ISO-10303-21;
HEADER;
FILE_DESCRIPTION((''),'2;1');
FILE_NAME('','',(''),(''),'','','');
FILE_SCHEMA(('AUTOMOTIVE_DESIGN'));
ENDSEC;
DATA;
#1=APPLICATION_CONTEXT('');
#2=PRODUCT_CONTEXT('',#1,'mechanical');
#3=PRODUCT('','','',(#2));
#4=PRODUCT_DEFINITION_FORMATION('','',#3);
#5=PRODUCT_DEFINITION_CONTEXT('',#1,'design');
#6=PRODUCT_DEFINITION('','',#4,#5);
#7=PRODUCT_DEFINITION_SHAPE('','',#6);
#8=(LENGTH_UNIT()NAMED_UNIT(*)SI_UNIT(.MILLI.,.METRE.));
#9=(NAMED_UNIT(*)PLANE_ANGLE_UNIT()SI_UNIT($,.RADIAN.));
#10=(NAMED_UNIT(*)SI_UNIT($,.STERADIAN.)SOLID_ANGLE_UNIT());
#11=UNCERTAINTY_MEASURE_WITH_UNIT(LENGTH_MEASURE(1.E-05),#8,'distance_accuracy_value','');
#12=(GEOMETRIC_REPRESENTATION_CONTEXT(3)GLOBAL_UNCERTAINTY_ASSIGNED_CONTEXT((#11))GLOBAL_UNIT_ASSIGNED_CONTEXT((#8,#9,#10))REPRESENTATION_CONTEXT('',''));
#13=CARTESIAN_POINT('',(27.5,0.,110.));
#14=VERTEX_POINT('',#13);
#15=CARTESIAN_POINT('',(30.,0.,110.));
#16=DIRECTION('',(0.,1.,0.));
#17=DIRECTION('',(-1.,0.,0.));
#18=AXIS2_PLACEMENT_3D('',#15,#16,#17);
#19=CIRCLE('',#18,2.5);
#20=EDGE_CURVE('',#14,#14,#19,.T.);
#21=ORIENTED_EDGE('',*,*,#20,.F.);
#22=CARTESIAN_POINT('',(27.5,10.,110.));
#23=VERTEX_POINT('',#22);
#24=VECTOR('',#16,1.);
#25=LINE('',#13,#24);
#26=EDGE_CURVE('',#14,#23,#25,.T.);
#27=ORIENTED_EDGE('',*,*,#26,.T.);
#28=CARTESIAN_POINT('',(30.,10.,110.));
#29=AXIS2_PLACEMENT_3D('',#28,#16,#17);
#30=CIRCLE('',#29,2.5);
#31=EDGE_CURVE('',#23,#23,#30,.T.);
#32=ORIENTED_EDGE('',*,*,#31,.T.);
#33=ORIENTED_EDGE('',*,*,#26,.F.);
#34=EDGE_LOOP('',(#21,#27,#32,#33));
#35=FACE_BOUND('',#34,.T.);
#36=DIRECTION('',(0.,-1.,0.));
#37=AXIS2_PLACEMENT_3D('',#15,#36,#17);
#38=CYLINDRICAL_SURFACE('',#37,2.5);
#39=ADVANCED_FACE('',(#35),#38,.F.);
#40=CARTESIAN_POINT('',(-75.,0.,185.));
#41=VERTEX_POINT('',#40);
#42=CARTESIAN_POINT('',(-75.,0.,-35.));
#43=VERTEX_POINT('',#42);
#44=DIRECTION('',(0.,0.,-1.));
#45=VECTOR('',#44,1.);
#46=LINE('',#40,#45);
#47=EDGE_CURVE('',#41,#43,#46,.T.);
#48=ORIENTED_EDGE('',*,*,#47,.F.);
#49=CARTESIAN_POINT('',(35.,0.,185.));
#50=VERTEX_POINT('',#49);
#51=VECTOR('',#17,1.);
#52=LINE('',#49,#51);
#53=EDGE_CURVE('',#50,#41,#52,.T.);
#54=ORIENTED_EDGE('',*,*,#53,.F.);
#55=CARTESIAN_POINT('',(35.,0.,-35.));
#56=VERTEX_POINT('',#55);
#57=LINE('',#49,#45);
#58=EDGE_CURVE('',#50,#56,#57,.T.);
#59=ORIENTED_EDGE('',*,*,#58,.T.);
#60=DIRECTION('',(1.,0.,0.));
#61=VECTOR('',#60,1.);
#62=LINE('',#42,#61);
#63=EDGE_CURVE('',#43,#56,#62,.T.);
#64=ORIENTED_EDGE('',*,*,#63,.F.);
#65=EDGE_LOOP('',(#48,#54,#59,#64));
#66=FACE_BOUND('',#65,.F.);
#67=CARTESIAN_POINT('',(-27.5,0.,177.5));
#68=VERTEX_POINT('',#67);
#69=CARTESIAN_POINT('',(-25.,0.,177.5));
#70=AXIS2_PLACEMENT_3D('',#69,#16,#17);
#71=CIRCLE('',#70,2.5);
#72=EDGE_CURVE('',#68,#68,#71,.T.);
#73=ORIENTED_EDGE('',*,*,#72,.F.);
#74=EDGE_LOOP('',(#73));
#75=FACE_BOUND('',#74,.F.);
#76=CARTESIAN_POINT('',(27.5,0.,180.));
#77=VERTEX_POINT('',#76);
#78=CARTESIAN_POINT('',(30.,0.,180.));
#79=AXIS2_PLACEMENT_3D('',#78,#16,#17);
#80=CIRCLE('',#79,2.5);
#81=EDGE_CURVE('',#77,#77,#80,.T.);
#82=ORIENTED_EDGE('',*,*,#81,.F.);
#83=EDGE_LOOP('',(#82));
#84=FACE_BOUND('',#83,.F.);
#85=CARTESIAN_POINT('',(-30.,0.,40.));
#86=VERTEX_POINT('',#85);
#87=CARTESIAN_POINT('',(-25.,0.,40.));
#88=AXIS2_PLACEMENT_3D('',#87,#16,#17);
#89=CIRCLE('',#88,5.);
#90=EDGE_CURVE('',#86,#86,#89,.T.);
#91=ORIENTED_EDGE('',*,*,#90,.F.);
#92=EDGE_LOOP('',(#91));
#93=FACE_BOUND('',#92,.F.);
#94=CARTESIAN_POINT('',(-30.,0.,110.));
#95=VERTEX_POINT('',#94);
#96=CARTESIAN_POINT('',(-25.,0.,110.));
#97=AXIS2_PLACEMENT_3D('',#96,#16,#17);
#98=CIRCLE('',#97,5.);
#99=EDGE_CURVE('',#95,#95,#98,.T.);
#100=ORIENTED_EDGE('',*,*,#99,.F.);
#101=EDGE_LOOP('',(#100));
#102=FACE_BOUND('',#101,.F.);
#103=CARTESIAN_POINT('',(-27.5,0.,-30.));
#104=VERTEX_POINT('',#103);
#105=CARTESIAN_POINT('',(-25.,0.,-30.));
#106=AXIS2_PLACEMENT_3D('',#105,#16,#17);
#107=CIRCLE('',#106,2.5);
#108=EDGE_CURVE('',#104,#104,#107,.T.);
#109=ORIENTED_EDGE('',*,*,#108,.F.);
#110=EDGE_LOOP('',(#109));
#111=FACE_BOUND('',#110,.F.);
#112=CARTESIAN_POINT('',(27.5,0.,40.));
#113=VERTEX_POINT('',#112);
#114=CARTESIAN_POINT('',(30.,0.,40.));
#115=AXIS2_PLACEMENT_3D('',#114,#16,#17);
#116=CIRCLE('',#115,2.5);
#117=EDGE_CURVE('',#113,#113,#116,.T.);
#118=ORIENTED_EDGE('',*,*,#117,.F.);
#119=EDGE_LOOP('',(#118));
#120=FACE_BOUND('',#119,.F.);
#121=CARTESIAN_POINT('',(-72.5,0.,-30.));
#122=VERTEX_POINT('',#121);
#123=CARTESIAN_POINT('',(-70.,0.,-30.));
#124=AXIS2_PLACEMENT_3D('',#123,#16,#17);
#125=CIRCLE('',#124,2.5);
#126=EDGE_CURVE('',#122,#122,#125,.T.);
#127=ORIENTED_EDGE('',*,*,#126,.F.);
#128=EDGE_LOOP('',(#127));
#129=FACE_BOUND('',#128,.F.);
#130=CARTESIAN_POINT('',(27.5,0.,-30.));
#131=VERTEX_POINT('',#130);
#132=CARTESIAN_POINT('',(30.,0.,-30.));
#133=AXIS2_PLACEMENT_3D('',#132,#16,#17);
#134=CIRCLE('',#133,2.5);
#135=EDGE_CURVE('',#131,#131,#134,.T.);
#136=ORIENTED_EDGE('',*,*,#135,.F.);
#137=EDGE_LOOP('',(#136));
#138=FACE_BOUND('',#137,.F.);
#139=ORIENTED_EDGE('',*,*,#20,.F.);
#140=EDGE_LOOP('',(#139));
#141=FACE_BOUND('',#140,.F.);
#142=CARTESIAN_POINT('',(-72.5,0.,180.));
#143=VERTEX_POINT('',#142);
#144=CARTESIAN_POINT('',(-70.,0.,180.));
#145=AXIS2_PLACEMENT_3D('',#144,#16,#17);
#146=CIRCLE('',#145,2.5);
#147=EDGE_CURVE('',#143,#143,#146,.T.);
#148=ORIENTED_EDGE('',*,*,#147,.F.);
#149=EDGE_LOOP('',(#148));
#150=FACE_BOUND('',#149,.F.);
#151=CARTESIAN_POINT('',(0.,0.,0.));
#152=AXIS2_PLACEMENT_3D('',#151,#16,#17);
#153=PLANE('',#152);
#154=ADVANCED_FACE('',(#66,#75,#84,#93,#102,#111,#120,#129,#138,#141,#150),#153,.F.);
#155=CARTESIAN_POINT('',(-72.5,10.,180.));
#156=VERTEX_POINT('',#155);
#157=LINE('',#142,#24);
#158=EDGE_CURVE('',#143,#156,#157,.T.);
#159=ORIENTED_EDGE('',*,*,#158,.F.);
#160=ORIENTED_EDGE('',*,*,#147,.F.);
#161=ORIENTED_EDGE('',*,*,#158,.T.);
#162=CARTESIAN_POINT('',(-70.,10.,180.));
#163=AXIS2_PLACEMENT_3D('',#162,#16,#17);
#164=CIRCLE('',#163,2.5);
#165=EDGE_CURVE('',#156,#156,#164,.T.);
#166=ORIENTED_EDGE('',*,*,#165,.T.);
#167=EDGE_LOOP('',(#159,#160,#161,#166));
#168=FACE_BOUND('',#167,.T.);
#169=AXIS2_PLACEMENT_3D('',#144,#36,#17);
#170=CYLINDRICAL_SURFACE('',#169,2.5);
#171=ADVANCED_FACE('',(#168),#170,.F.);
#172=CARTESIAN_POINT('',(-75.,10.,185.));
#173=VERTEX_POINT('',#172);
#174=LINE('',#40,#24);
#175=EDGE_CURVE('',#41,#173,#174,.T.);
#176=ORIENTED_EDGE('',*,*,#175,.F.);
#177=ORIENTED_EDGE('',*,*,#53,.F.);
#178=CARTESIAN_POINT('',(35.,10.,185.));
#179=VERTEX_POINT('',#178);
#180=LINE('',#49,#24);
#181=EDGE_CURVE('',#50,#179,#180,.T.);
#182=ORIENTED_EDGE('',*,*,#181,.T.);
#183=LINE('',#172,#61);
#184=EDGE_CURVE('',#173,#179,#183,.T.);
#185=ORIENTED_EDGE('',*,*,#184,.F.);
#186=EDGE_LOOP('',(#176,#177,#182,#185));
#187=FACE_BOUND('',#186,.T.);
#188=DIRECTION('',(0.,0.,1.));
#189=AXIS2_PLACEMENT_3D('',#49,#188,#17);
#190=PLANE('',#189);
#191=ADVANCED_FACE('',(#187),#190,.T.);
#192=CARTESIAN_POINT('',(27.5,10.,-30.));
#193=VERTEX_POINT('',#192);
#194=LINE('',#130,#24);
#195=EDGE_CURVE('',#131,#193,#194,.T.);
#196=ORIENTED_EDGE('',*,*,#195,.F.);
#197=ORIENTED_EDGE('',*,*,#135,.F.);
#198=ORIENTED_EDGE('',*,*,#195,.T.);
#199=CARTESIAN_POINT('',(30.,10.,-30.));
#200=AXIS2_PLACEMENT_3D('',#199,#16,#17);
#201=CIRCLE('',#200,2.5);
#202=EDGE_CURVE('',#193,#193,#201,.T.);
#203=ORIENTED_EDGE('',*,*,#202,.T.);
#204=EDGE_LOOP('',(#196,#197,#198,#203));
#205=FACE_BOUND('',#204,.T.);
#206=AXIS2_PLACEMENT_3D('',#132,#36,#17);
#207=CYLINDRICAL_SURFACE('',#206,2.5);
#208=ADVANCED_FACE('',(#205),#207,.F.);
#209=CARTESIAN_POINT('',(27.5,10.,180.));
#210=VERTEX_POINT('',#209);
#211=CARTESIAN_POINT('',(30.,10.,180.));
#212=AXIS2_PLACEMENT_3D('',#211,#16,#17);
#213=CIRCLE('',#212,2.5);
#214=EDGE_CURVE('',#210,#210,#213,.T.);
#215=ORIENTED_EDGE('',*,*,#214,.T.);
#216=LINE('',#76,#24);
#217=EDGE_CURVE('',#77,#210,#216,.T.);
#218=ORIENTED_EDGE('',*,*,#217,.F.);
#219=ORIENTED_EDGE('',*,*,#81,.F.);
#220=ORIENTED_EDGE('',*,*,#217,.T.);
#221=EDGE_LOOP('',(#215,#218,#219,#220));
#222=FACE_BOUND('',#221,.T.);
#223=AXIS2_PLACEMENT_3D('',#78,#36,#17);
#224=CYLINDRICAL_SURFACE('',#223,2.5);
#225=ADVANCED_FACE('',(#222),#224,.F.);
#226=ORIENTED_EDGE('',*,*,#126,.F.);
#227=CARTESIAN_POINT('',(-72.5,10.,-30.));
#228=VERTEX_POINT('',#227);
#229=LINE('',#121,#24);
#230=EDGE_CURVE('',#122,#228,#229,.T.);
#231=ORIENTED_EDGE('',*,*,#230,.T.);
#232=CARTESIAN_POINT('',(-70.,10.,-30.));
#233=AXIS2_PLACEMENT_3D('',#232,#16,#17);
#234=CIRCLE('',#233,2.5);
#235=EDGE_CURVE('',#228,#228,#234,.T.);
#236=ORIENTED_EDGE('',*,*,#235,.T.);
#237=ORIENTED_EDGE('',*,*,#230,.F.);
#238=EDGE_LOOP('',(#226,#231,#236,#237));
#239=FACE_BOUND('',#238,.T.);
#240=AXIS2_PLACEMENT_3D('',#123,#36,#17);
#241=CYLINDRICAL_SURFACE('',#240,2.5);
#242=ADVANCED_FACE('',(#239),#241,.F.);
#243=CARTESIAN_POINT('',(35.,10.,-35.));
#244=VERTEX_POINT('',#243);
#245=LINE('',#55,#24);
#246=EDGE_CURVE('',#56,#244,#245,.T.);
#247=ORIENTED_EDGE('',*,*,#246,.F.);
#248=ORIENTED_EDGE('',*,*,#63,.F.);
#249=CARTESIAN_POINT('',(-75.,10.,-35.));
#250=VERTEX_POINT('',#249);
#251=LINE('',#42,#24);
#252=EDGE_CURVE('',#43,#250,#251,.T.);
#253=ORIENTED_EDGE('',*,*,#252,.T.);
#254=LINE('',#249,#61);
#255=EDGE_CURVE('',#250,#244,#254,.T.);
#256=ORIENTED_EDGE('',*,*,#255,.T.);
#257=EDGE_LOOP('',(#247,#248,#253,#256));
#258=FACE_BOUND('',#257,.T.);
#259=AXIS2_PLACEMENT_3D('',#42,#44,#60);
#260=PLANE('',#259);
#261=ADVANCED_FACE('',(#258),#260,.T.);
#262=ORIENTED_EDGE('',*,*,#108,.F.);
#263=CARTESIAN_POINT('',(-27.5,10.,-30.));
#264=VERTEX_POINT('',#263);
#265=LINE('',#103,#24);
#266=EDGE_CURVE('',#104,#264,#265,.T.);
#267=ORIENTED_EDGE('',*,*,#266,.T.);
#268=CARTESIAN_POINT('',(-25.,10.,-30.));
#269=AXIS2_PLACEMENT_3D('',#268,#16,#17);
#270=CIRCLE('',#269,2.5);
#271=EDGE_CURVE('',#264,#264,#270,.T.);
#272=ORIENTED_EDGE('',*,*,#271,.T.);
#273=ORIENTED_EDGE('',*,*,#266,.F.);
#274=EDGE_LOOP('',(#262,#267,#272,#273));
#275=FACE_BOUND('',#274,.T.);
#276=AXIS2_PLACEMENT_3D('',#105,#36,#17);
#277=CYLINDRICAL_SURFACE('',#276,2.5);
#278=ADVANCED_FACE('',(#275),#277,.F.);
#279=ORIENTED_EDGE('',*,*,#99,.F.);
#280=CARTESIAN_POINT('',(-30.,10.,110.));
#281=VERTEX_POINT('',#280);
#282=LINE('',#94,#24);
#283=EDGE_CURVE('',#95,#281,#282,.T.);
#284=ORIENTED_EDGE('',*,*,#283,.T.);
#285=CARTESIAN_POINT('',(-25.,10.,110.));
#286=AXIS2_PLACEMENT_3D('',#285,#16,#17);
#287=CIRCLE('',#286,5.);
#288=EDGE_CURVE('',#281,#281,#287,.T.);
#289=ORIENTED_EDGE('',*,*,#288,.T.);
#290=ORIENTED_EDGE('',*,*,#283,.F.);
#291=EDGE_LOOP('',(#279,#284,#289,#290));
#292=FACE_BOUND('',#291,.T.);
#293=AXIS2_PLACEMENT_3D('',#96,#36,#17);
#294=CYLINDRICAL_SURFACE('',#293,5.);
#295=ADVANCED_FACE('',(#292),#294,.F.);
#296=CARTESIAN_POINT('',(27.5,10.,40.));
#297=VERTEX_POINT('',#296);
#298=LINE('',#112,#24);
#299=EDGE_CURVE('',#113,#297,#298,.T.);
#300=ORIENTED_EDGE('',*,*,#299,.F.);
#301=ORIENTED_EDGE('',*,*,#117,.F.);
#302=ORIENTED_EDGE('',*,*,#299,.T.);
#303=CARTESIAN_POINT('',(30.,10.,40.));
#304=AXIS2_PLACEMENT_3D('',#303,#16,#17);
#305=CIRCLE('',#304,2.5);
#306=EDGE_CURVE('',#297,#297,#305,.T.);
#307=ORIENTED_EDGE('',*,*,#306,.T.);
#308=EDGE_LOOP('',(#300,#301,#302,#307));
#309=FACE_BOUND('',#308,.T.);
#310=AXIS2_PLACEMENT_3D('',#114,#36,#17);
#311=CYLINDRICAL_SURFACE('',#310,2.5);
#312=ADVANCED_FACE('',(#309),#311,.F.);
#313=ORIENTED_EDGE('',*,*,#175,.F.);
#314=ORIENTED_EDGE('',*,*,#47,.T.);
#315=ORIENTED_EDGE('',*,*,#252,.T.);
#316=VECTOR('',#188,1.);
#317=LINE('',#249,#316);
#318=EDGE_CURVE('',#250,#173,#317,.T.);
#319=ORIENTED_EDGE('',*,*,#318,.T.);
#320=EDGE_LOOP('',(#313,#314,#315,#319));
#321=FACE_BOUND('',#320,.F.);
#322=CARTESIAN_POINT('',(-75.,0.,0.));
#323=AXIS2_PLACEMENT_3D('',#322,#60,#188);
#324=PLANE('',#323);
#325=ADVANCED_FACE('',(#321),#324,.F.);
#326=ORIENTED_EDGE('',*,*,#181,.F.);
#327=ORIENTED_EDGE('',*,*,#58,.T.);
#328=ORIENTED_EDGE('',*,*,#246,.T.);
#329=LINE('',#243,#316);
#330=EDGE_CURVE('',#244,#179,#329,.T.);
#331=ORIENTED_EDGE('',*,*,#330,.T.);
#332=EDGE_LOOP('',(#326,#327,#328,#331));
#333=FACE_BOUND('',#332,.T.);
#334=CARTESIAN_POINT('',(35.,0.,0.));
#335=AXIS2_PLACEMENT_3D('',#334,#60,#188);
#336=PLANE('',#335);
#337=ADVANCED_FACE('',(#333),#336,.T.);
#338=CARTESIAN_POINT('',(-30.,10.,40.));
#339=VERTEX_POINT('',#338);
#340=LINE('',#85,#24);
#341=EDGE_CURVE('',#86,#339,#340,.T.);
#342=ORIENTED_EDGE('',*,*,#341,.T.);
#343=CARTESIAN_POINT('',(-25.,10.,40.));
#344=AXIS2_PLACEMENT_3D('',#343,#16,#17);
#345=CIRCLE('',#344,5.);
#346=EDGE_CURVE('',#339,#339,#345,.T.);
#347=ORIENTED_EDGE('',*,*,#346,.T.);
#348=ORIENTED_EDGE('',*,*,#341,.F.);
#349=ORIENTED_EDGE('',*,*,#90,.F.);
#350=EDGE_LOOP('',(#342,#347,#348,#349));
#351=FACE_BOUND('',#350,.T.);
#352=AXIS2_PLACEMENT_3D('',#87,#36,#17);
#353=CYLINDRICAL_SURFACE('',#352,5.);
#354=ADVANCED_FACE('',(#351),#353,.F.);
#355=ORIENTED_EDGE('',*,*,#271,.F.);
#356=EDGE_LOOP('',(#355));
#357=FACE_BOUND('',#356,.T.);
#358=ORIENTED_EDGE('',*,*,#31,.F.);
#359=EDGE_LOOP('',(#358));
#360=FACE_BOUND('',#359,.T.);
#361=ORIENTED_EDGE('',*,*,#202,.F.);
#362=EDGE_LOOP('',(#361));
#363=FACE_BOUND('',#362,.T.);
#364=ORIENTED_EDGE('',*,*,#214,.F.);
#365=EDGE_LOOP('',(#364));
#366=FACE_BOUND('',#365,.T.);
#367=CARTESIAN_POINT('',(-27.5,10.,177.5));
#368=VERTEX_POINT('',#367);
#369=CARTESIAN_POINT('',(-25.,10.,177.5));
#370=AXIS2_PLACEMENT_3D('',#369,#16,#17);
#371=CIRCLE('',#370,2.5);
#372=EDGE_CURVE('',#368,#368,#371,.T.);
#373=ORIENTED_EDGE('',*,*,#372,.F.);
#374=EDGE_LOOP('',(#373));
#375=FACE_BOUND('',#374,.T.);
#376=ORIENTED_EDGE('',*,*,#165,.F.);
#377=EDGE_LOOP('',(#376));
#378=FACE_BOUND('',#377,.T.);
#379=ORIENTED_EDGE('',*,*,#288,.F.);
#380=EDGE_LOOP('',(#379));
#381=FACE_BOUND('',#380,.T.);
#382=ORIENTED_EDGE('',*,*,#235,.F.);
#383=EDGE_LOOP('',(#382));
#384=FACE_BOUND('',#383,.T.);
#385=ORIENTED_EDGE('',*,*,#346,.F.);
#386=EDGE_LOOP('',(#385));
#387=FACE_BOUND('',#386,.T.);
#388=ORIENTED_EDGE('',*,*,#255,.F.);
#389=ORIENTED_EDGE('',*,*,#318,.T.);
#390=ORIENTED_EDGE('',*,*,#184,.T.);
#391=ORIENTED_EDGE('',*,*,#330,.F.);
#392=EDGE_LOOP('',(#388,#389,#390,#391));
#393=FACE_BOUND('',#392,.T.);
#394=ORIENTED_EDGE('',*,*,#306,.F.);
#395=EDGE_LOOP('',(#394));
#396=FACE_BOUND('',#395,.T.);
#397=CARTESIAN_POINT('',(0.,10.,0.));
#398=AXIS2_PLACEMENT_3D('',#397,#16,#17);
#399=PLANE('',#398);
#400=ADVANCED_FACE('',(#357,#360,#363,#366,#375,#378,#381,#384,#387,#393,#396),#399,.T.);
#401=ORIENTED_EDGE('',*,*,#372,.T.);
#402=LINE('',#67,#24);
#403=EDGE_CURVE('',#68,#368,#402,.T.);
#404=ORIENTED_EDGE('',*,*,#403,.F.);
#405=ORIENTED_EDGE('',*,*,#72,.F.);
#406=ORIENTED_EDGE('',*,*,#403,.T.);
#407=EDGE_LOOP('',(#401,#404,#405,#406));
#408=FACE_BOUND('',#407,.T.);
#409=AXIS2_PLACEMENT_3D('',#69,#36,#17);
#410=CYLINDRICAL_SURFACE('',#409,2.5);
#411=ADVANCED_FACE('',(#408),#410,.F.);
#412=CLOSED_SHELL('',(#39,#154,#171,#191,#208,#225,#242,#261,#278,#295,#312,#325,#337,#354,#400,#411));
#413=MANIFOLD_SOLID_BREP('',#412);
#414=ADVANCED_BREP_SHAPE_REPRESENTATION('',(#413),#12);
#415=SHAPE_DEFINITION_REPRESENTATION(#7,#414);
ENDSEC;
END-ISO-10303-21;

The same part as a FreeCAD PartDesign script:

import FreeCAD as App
import Part
import Sketcher

doc = App.newDocument("Part")
body = doc.addObject("PartDesign::Body", "Body")

# Sketch on XZ plane
sketch1 = body.newObject("Sketcher::SketchObject", "Sketch")
sketch1.AttachmentSupport = (doc.getObject("XZ_Plane"), [""])
sketch1.MapMode = "FlatFace"
sketch1.addGeometry(Part.LineSegment(App.Vector(35, -35, 0), App.Vector(-75, -35, 0)), False)
sketch1.addGeometry(Part.LineSegment(App.Vector(-75, -35, 0), App.Vector(-75, 185, 0)), False)
sketch1.addGeometry(Part.LineSegment(App.Vector(-75, 185, 0), App.Vector(35, 185, 0)), False)
sketch1.addGeometry(Part.LineSegment(App.Vector(35, 185, 0), App.Vector(35, -35, 0)), False)
sketch1.addGeometry(Part.Circle(App.Vector(30, 40, 0), App.Vector(0, 0, 1), 2.5), False)
sketch1.addGeometry(Part.Circle(App.Vector(-25, 40, 0), App.Vector(0, 0, 1), 5), False)
sketch1.addGeometry(Part.Circle(App.Vector(-25, -30, 0), App.Vector(0, 0, 1), 2.5), False)
sketch1.addGeometry(Part.Circle(App.Vector(-70, -30, 0), App.Vector(0, 0, 1), 2.5), False)
sketch1.addGeometry(Part.Circle(App.Vector(30, -30, 0), App.Vector(0, 0, 1), 2.5), False)
sketch1.addGeometry(Part.Circle(App.Vector(-70, 180, 0), App.Vector(0, 0, 1), 2.5), False)
sketch1.addGeometry(Part.Circle(App.Vector(30, 110, 0), App.Vector(0, 0, 1), 2.5), False)
sketch1.addGeometry(Part.Circle(App.Vector(30, 180, 0), App.Vector(0, 0, 1), 2.5), False)
sketch1.addGeometry(Part.Circle(App.Vector(-25, 110, 0), App.Vector(0, 0, 1), 5), False)
sketch1.addGeometry(Part.Circle(App.Vector(-25, 177.5, 0), App.Vector(0, 0, 1), 2.5), False)
sketch1.addConstraint(Sketcher.Constraint("Coincident", 0, 2, 1, 1))
sketch1.addConstraint(Sketcher.Constraint("Coincident", 1, 2, 2, 1))
sketch1.addConstraint(Sketcher.Constraint("Coincident", 2, 2, 3, 1))
sketch1.addConstraint(Sketcher.Constraint("Coincident", 3, 2, 0, 1))
sketch1.addConstraint(Sketcher.Constraint("Horizontal", 0))
sketch1.addConstraint(Sketcher.Constraint("Vertical", 1))
sketch1.addConstraint(Sketcher.Constraint("Horizontal", 2))
sketch1.addConstraint(Sketcher.Constraint("Vertical", 3))
sketch1.addConstraint(Sketcher.Constraint("Equal", 4, 6))
sketch1.addConstraint(Sketcher.Constraint("Equal", 6, 7))
sketch1.addConstraint(Sketcher.Constraint("Equal", 7, 8))
sketch1.addConstraint(Sketcher.Constraint("Equal", 8, 9))
sketch1.addConstraint(Sketcher.Constraint("Equal", 9, 10))
sketch1.addConstraint(Sketcher.Constraint("Equal", 10, 11))
sketch1.addConstraint(Sketcher.Constraint("Equal", 5, 12))
sketch1.addConstraint(Sketcher.Constraint("Equal", 11, 13))
sketch1.addConstraint(Sketcher.Constraint("Horizontal", 4, 3, 5, 3))
sketch1.addConstraint(Sketcher.Constraint("Horizontal", 6, 3, 7, 3))
sketch1.addConstraint(Sketcher.Constraint("Horizontal", 7, 3, 8, 3))
sketch1.addConstraint(Sketcher.Constraint("Horizontal", 9, 3, 11, 3))
sketch1.addConstraint(Sketcher.Constraint("Horizontal", 10, 3, 12, 3))
sketch1.addConstraint(Sketcher.Constraint("Vertical", 5, 3, 6, 3))
sketch1.addConstraint(Sketcher.Constraint("Vertical", 4, 3, 8, 3))
sketch1.addConstraint(Sketcher.Constraint("Vertical", 7, 3, 9, 3))
sketch1.addConstraint(Sketcher.Constraint("Vertical", 8, 3, 10, 3))
sketch1.addConstraint(Sketcher.Constraint("Vertical", 10, 3, 11, 3))
sketch1.addConstraint(Sketcher.Constraint("Vertical", 6, 3, 12, 3))
sketch1.addConstraint(Sketcher.Constraint("Vertical", 12, 3, 13, 3))
sketch1.addConstraint(Sketcher.Constraint("Diameter", 4, 5.0))
sketch1.addConstraint(Sketcher.Constraint("Diameter", 5, 10.0))
sketch1.addConstraint(Sketcher.Constraint("DistanceX", 7, 3, -1, 1, 70.0))
sketch1.addConstraint(Sketcher.Constraint("DistanceX", 0, 2, -1, 1, 75.0))
sketch1.addConstraint(Sketcher.Constraint("DistanceY", 0, 2, -1, 1, 35.0))
sketch1.addConstraint(Sketcher.Constraint("DistanceY", -1, 1, 1, 2, 185.0))
sketch1.addConstraint(Sketcher.Constraint("DistanceX", -1, 1, 2, 2, 35.0))
sketch1.addConstraint(Sketcher.Constraint("DistanceY", 6, 3, 5, 3, 70.0))
sketch1.addConstraint(Sketcher.Constraint("DistanceY", 4, 3, 10, 3, 70.0))
sketch1.addConstraint(Sketcher.Constraint("DistanceY", 10, 3, 9, 3, 70.0))
sketch1.addConstraint(Sketcher.Constraint("DistanceY", 0, 2, 7, 3, 5.0))
sketch1.addConstraint(Sketcher.Constraint("DistanceX", 0, 2, 6, 3, 50.0))
sketch1.addConstraint(Sketcher.Constraint("DistanceX", 11, 3, 2, 2, 5.0))
sketch1.addConstraint(Sketcher.Constraint("DistanceY", -1, 1, 13, 3, 177.5))
pad1 = body.newObject("PartDesign::Pad", "Pad")
pad1.Profile = sketch1
pad1.Length = 10
pad1.Reversed = True

doc.recompute()
